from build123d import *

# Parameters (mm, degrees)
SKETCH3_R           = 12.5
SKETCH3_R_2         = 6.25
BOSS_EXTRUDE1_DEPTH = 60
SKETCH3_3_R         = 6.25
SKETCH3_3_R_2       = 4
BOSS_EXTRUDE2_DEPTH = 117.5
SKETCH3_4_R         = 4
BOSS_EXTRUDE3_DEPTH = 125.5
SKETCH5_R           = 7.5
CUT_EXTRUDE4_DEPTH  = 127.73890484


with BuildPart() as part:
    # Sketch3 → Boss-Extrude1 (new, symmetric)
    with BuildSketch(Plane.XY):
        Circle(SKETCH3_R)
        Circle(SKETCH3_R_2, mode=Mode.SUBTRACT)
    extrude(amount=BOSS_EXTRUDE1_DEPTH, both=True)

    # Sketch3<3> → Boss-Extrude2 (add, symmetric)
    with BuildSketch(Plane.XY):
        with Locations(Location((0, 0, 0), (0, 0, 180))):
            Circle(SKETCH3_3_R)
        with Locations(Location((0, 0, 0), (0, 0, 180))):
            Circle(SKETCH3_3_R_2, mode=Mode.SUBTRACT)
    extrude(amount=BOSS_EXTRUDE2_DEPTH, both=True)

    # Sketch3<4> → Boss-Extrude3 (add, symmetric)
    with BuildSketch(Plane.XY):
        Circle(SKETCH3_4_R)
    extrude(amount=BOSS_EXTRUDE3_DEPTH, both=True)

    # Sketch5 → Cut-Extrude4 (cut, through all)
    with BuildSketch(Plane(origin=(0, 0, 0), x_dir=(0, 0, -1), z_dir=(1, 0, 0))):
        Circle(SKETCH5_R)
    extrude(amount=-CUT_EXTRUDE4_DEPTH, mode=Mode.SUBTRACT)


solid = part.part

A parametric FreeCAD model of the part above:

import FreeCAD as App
import Part
import Sketcher
from FreeCAD import Vector
Q = App.Units.Quantity

doc = App.newDocument("Part")
body = doc.addObject("PartDesign::Body", "Body")

# Sketch on XY plane
sketch1 = doc.addObject("Sketcher::SketchObject", "Sketch")
body.addObject(sketch1)
sketch1.AttachmentSupport = (doc.XY_Plane, [""])
sketch1.MapMode = "FlatFace"
sketch1.addGeometry([
    Part.Circle(Vector(0, 0, 0), Vector(0, 0, 1), 12),
    Part.Circle(Vector(0, 0, 0), Vector(0, 0, 1), 6),
], False)
sketch1.addConstraint([
    Sketcher.Constraint("Coincident", 0, 3, -1, 1),
    Sketcher.Constraint("Coincident", 1, 3, -1, 1),
    Sketcher.Constraint("Diameter", 0, Q("25 mm")),
    Sketcher.Constraint("Diameter", 1, Q("12.5 mm")),
])
pad1 = doc.addObject("PartDesign::Pad", "Pad")
body.addObject(pad1)
pad1.Profile = sketch1
pad1.Length = 120
pad1.Midplane = True

# Sketch on XY plane
sketch2 = doc.addObject("Sketcher::SketchObject", "Sketch001")
body.addObject(sketch2)
sketch2.AttachmentSupport = (doc.XY_Plane, [""])
sketch2.MapMode = "FlatFace"
sketch2.addGeometry([
    Part.Circle(Vector(0, 0, 0), Vector(0, 0, 1), 6.2),
    Part.Circle(Vector(0, 0, 0), Vector(0, 0, 1), 4),
], False)
sketch2.addConstraint([
    Sketcher.Constraint("Coincident", 0, 3, -1, 1),
    Sketcher.Constraint("Coincident", 1, 3, -1, 1),
    Sketcher.Constraint("Diameter", 1, Q("8 mm")),
    Sketcher.Constraint("Diameter", 0, Q("12.5 mm")),
])
pad2 = doc.addObject("PartDesign::Pad", "Pad001")
body.addObject(pad2)
pad2.Profile = sketch2
pad2.Length = 235
pad2.Midplane = True

# Sketch on XY plane
sketch3 = doc.addObject("Sketcher::SketchObject", "Sketch002")
body.addObject(sketch3)
sketch3.AttachmentSupport = (doc.XY_Plane, [""])
sketch3.MapMode = "FlatFace"
sketch3.addGeometry(Part.Circle(Vector(0, 0, 0), Vector(0, 0, 1), 4), False)
sketch3.addConstraint([
    Sketcher.Constraint("Coincident", 0, 3, -1, 1),
    Sketcher.Constraint("Diameter", 0, Q("8 mm")),
])
pad3 = doc.addObject("PartDesign::Pad", "Pad002")
body.addObject(pad3)
pad3.Profile = sketch3
pad3.Length = 251
pad3.Midplane = True

# Sketch on YZ plane
sketch4 = doc.addObject("Sketcher::SketchObject", "Sketch003")
body.addObject(sketch4)
sketch4.AttachmentSupport = (doc.YZ_Plane, [""])
sketch4.MapMode = "FlatFace"
sketch4.addGeometry(Part.Circle(Vector(0, 0, 0), Vector(0, 0, 1), 8), False)
sketch4.addConstraint([
    Sketcher.Constraint("Coincident", 0, 3, -1, 1),
    Sketcher.Constraint("Diameter", 0, Q("15 mm")),
])
pocket1 = doc.addObject("PartDesign::Pocket", "Pocket")
body.addObject(pocket1)
pocket1.Profile = sketch4
pocket1.Type = "ThroughAll"

doc.recompute()
